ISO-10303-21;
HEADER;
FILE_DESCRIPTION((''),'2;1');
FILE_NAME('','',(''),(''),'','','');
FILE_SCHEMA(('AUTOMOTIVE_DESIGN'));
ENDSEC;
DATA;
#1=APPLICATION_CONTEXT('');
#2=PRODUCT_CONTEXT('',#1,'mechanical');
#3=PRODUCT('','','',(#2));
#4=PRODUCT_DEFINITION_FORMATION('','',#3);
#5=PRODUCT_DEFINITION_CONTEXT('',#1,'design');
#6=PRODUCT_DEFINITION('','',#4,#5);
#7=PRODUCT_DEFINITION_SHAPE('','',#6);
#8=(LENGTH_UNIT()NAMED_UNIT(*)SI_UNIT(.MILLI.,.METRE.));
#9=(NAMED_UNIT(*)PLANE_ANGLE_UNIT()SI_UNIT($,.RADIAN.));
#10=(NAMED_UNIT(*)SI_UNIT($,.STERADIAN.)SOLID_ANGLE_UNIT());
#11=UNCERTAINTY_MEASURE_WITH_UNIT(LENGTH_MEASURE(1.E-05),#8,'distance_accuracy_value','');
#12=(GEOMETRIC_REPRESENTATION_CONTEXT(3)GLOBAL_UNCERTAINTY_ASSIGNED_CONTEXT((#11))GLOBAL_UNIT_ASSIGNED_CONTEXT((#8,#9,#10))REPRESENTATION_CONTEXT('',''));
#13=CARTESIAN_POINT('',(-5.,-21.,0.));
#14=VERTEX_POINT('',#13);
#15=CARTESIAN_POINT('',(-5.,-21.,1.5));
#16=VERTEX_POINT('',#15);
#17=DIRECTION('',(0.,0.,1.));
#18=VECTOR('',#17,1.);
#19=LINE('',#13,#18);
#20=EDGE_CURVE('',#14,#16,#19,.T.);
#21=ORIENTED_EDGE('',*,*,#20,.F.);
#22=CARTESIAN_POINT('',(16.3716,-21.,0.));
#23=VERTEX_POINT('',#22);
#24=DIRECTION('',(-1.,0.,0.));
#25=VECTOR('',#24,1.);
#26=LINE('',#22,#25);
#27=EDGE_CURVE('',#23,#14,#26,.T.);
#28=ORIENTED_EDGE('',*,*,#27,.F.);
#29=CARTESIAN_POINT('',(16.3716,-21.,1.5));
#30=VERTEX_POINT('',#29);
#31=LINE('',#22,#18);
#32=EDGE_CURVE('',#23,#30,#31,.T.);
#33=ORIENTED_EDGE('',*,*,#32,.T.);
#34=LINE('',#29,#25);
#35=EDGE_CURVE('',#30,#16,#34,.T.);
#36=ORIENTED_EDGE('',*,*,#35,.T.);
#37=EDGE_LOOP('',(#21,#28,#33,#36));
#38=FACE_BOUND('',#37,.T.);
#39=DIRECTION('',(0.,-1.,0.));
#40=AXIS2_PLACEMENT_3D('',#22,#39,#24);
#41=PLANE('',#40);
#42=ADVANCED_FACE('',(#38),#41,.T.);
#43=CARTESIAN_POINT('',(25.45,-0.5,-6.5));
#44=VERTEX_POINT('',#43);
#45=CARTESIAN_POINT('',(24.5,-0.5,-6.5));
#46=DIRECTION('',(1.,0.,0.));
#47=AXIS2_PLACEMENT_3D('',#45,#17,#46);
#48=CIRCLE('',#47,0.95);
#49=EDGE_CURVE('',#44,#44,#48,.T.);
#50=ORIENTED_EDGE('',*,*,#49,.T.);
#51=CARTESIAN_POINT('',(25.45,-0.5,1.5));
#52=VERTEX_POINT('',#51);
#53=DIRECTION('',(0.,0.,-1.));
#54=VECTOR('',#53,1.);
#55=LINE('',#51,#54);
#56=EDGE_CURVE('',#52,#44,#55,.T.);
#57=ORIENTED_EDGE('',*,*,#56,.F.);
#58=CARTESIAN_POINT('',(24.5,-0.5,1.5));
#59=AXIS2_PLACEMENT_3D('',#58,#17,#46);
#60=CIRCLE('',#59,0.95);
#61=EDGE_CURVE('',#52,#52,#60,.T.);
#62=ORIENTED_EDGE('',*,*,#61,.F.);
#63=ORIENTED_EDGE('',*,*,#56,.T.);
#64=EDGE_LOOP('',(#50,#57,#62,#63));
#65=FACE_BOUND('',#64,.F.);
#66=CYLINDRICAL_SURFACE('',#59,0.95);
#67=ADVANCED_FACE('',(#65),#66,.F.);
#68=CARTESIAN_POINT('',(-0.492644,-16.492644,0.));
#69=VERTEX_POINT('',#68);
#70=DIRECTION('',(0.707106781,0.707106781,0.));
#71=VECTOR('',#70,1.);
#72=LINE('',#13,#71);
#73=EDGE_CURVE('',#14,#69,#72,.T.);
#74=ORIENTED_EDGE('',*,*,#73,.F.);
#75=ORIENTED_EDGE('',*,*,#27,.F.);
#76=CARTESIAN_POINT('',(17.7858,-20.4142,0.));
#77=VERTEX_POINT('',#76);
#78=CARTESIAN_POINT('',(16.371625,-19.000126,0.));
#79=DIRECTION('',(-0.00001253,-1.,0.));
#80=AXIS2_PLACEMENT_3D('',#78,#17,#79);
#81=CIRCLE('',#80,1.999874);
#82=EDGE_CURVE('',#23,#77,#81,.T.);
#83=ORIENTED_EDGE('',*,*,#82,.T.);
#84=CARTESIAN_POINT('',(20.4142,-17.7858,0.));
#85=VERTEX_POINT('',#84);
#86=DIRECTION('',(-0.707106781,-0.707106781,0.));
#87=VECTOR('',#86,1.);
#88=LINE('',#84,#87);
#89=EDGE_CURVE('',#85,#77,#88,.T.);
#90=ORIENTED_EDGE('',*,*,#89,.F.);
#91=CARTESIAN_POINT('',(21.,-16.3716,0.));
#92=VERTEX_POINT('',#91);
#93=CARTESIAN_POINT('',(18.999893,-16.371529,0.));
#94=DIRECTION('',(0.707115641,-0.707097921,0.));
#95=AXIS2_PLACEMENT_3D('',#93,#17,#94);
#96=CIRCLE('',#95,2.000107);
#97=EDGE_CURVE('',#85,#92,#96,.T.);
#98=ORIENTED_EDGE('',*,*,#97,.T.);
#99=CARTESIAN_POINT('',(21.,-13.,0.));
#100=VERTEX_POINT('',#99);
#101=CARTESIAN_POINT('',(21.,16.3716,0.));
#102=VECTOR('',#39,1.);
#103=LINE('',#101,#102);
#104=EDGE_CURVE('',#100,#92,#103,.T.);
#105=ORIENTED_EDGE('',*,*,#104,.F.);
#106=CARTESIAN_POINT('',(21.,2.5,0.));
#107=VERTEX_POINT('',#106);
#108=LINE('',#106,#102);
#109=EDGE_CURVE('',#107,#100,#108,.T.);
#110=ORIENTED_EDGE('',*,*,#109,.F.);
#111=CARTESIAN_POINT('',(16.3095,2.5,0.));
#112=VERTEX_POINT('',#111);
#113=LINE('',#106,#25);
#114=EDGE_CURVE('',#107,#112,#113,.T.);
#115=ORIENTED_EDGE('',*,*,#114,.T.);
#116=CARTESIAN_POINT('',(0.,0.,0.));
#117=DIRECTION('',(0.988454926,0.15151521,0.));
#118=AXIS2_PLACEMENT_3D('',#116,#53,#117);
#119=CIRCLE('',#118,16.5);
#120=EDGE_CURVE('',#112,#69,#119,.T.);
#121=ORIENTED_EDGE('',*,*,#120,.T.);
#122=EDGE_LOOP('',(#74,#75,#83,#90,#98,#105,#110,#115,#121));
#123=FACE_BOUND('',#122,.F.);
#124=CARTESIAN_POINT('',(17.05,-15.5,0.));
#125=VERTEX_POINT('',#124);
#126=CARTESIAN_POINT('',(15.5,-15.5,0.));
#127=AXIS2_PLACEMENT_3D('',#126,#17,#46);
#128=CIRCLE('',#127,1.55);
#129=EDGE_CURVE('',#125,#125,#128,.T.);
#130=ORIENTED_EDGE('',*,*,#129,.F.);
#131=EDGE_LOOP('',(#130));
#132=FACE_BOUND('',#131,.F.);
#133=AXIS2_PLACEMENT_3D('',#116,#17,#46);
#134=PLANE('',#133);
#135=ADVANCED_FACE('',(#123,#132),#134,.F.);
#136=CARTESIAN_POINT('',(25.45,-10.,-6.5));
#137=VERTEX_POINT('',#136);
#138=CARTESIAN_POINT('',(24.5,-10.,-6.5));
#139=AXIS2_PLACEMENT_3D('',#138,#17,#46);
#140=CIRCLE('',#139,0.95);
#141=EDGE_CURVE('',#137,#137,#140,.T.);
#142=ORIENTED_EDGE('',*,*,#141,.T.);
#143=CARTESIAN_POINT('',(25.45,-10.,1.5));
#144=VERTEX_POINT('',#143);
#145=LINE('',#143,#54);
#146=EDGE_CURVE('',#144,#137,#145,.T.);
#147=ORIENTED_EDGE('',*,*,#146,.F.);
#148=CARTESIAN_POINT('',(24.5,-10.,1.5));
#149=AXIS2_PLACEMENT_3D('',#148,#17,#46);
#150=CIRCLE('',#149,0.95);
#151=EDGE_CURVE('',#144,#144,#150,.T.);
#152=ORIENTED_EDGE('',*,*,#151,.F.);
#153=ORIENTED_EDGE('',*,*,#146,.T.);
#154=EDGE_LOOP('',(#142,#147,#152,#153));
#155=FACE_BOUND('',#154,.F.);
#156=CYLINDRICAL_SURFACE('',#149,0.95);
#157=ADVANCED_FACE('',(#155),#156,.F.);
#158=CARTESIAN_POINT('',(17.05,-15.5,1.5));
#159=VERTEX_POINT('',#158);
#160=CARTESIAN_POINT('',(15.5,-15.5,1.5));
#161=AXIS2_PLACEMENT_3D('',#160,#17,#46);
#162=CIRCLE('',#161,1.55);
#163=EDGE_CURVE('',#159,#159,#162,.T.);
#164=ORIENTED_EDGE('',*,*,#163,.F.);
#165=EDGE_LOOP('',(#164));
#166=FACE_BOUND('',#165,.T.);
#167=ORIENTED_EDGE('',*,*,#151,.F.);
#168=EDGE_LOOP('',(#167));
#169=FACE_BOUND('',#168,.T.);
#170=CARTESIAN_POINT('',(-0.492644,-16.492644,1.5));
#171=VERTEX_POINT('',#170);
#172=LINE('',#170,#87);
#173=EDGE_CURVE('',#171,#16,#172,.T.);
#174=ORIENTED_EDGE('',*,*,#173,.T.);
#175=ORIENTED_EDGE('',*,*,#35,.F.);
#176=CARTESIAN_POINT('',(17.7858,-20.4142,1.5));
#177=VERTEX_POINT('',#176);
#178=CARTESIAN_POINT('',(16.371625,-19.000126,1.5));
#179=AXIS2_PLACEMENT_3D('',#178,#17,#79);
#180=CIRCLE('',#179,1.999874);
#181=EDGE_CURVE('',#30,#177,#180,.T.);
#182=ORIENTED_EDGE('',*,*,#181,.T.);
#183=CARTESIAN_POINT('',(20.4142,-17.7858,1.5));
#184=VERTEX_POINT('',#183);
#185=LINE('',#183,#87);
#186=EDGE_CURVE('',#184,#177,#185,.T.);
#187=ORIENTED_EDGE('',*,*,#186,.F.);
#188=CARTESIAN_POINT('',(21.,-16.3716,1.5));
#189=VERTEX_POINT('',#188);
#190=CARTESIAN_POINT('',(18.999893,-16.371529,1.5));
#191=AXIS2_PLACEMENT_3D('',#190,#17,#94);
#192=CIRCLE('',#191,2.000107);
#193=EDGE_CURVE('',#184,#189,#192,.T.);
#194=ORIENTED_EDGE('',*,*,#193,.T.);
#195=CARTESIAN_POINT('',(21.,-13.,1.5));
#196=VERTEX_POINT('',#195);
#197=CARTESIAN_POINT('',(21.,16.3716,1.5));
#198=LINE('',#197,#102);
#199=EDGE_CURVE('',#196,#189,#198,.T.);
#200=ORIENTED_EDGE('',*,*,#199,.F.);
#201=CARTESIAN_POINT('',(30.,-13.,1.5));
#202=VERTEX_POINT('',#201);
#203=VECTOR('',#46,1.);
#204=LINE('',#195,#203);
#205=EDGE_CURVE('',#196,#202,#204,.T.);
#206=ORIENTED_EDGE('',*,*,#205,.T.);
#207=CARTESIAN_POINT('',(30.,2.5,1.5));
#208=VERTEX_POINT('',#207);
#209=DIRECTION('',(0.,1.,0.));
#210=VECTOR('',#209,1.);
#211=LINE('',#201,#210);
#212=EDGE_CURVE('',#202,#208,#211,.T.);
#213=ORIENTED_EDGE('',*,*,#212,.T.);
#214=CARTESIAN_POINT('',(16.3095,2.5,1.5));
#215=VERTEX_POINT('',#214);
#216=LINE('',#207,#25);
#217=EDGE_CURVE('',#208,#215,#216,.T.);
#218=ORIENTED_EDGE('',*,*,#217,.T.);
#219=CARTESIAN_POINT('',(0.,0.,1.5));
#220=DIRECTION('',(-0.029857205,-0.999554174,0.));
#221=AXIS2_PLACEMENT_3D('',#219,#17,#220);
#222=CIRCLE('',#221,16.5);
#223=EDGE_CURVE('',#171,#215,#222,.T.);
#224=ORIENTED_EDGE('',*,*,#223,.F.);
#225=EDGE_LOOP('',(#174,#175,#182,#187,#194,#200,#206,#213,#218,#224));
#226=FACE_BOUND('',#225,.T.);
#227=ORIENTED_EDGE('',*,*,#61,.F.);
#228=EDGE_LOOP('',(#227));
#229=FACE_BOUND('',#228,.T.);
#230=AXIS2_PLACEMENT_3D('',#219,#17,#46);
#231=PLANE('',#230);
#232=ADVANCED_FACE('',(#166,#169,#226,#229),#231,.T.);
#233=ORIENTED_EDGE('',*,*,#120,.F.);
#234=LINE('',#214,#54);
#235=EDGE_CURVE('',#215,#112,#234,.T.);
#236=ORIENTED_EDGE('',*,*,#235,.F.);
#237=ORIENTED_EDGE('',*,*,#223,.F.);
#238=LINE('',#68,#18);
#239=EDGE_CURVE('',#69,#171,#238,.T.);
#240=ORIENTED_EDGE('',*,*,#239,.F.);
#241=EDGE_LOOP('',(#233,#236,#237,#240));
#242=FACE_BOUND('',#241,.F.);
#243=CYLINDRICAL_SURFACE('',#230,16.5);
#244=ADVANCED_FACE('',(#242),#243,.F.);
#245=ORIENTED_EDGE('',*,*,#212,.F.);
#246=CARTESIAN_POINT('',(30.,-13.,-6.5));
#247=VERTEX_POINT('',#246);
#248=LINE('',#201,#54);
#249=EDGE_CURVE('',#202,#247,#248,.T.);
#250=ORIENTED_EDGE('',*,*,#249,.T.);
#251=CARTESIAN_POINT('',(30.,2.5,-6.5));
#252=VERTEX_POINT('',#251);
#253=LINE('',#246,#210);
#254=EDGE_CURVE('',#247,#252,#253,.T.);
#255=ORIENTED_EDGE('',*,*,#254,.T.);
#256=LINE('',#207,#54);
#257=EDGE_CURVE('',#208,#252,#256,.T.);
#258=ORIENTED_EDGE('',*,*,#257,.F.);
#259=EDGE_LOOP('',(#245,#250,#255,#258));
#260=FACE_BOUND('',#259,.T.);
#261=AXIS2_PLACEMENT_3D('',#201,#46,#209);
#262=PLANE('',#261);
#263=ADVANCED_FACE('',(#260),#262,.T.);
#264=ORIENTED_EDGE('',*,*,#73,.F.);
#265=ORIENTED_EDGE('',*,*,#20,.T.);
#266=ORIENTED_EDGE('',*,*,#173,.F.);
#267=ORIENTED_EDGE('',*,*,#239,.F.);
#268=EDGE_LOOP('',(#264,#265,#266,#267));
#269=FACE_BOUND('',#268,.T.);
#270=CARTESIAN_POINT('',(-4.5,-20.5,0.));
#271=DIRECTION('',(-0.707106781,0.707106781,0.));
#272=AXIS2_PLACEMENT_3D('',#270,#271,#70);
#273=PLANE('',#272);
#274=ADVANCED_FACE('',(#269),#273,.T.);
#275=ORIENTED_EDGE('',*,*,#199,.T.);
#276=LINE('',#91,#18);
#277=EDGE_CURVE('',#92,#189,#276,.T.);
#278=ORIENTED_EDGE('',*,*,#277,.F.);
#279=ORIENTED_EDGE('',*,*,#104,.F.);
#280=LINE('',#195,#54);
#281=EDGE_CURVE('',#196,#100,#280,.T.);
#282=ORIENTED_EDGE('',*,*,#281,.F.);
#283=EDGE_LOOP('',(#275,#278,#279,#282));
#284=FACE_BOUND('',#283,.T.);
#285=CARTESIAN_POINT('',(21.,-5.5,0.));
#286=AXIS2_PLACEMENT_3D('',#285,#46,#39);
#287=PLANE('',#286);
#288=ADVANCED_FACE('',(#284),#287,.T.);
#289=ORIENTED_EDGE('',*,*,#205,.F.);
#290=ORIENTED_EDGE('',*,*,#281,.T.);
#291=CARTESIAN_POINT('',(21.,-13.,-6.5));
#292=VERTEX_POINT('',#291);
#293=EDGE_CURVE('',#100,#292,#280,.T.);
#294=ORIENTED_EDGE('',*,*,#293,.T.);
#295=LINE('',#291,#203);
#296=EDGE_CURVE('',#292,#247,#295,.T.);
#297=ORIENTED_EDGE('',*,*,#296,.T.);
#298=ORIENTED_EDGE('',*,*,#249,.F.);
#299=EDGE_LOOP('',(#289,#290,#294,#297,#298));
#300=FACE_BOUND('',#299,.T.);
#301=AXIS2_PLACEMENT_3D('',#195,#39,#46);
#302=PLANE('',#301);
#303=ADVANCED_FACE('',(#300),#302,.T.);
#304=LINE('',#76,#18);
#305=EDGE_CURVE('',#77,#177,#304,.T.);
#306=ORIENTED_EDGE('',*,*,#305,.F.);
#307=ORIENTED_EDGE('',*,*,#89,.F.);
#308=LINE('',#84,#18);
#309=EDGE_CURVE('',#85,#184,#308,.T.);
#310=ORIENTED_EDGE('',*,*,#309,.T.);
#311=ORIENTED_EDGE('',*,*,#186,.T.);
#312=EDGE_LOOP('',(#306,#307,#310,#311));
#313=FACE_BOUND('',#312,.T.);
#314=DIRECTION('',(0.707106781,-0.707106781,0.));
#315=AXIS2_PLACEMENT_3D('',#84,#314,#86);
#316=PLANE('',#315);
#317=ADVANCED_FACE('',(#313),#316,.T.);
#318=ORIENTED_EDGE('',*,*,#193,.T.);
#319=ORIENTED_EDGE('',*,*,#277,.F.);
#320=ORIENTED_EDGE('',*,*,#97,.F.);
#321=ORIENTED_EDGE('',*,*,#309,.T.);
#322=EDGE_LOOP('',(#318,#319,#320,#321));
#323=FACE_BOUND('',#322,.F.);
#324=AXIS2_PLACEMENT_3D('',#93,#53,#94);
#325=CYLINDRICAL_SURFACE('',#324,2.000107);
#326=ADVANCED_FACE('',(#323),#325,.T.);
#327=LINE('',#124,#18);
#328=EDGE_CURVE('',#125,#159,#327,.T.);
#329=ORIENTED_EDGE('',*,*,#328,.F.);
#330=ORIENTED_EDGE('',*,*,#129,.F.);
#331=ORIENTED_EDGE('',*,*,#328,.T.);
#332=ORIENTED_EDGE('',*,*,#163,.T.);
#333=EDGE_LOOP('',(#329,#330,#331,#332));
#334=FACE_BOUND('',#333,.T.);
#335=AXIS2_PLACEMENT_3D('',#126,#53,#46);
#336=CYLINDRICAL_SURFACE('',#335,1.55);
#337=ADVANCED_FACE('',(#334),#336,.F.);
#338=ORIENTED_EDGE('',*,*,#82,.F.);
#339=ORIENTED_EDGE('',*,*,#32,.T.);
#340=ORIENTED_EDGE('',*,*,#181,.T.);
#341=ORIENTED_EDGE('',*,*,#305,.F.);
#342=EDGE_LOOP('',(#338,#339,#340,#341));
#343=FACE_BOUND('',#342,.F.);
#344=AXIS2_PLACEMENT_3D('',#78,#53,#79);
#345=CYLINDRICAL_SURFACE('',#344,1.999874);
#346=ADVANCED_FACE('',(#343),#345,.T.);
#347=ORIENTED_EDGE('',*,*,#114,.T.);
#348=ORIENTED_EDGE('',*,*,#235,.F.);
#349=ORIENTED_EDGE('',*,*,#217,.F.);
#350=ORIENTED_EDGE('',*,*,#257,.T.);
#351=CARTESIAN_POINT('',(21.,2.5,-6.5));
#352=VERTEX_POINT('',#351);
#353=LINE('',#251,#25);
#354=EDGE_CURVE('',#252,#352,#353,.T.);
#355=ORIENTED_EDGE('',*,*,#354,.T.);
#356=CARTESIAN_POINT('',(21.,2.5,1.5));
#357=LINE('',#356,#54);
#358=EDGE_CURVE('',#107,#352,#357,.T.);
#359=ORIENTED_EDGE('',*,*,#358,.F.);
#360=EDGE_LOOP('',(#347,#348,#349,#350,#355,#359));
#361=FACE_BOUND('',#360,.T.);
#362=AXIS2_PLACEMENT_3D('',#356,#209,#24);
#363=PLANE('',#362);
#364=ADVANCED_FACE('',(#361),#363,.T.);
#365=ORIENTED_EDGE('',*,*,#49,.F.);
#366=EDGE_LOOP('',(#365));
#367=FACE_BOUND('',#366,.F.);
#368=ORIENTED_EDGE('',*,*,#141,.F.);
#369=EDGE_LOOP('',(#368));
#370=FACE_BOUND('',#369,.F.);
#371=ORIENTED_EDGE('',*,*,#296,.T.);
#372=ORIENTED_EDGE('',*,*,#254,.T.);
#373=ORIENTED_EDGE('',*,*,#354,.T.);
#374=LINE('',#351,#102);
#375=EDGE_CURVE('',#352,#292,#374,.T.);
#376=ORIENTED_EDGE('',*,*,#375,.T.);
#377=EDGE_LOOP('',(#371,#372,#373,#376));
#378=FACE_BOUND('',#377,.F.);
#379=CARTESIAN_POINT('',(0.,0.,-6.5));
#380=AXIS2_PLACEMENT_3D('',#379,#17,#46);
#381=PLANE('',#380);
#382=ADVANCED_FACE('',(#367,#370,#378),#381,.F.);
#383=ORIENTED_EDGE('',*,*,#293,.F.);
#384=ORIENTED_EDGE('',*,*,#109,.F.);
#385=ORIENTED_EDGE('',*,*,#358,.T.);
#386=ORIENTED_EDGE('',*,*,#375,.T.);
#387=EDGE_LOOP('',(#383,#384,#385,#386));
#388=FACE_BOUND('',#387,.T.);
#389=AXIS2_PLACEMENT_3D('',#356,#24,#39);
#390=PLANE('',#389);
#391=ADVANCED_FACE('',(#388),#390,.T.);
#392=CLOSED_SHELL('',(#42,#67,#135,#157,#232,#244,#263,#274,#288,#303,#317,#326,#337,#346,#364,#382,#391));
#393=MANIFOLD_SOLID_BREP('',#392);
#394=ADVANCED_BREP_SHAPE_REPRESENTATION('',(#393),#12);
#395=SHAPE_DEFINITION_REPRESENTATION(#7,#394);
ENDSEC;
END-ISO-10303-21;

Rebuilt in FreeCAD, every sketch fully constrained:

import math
import FreeCAD as App
import Part
import Sketcher

V = App.Vector
Q = App.Units.Quantity

doc = App.newDocument("Part")
body = doc.addObject("PartDesign::Body", "Body")

sketch1 = body.newObject("Sketcher::SketchObject", "Sketch")
sketch1.AttachmentSupport = (doc.getObject("XY_Plane"), [""])
sketch1.MapMode = "FlatFace"
sketch1.addGeometry([
    Part.LineSegment(V(21, -5.5, 0), V(15.6, -5.5, 0)),
    Part.ArcOfCircle(Part.Circle(V(0, 0, 0), V(0, 0, 1), 16.5), math.radians(-92), math.radians(-19)),
    Part.LineSegment(V(-0.5, -16.5, 0), V(-5, -21, 0)),
    Part.LineSegment(V(-5, -21, 0), V(16.4, -21, 0)),
    Part.ArcOfCircle(Part.Circle(V(16.4, -19, 0), V(0, 0, 1), 2), math.radians(-90), math.radians(-45)),
    Part.LineSegment(V(17.8, -20.4, 0), V(20.4, -17.8, 0)),
    Part.ArcOfCircle(Part.Circle(V(19, -16.4, 0), V(0, 0, 1), 2), math.radians(-45), math.radians(0)),
    Part.LineSegment(V(21, -16.4, 0), V(21, -5.5, 0)),
    Part.Circle(V(15.5, -15.5, 0), V(0, 0, 1), 1.6),
], False)
sketch1.addConstraint([
    Sketcher.Constraint("Coincident", 0, 2, 1, 2),
    Sketcher.Constraint("Coincident", 1, 1, 2, 1),
    Sketcher.Constraint("Coincident", 2, 2, 3, 1),
    Sketcher.Constraint("Tangent", 3, 2, 4, 1),
    Sketcher.Constraint("Tangent", 4, 2, 5, 1),
    Sketcher.Constraint("Tangent", 5, 2, 6, 1),
    Sketcher.Constraint("Tangent", 6, 2, 7, 1),
    Sketcher.Constraint("Coincident", 7, 2, 0, 1),
    Sketcher.Constraint("Horizontal", 0),
    Sketcher.Constraint("Horizontal", 3),
    Sketcher.Constraint("Vertical", 7),
    Sketcher.Constraint("Coincident", 1, 3, -1, 1),
    Sketcher.Constraint("Equal", 4, 6),
    Sketcher.Constraint("Parallel", 2, 5),
    Sketcher.Constraint("Radius", 4, 2.0),
    Sketcher.Constraint("Diameter", 8, 3.1),
    Sketcher.Constraint("Radius", 1, 16.5),
    Sketcher.Constraint("Angle", 2, Q("-135 deg")),
    Sketcher.Constraint("DistanceY", 4, 3, -1, 1, 19.0),
    Sketcher.Constraint("DistanceX", -1, 1, 6, 3, 19.0),
    Sketcher.Constraint("DistanceX", 2, 2, -1, 1, 5.0),
    Sketcher.Constraint("DistanceY", 8, 3, 0, 2, 10.0),
    Sketcher.Constraint("DistanceX", -1, 1, 8, 3, 15.5),
    Sketcher.Constraint("DistanceY", 8, 3, -1, 1, 15.5),
    Sketcher.Constraint("Distance", 5, 3.717),
])
pad1 = body.newObject("PartDesign::Pad", "Pad")
pad1.Profile = sketch1
pad1.Length = 1.5

sketch2 = body.newObject("Sketcher::SketchObject", "Sketch001")
sketch2.AttachmentSupport = (doc.getObject("XY_Plane"), [""])
sketch2.MapMode = "FlatFace"
sketch2.AttachmentOffset = App.Placement(V(0, 0, 1.5), App.Rotation())
sketch2.addGeometry([
    Part.LineSegment(V(30, -13, 0), V(30, 2.5, 0)),
    Part.LineSegment(V(30, 2.5, 0), V(21, 2.5, 0)),
    Part.LineSegment(V(21, 2.5, 0), V(21, -13, 0)),
    Part.LineSegment(V(21, -13, 0), V(30, -13, 0)),
    Part.Circle(V(24.5, -10, 0), V(0, 0, 1), 0.9),
    Part.Circle(V(24.5, -0.5, 0), V(0, 0, 1), 0.9),
], False)
sketch2.addConstraint([
    Sketcher.Constraint("Coincident", 0, 2, 1, 1),
    Sketcher.Constraint("Coincident", 1, 2, 2, 1),
    Sketcher.Constraint("Coincident", 2, 2, 3, 1),
    Sketcher.Constraint("Coincident", 3, 2, 0, 1),
    Sketcher.Constraint("Vertical", 0),
    Sketcher.Constraint("Horizontal", 1),
    Sketcher.Constraint("Vertical", 2),
    Sketcher.Constraint("Horizontal", 3),
    Sketcher.Constraint("Equal", 4, 5),
    Sketcher.Constraint("Vertical", 4, 3, 5, 3),
    Sketcher.Constraint("Diameter", 4, 1.9),
    Sketcher.Constraint("DistanceX", 1, 2, 1, 1, 9.0),
    Sketcher.Constraint("DistanceY", 4, 3, -1, 1, 10.0),
    Sketcher.Constraint("DistanceY", 5, 3, 0, 2, 3.0),
    Sketcher.Constraint("DistanceY", 2, 2, 4, 3, 3.0),
    Sketcher.Constraint("DistanceX", -1, 1, 4, 3, 24.5),
    Sketcher.Constraint("DistanceY", 4, 3, 5, 3, 9.5),
    Sketcher.Constraint("DistanceX", -1, 1, 0, 2, 30.0),
])
pad2 = body.newObject("PartDesign::Pad", "Pad001")
pad2.Profile = sketch2
pad2.Length = 8
pad2.Reversed = True

sketch3 = body.newObject("Sketcher::SketchObject", "Sketch002")
sketch3.AttachmentSupport = (doc.getObject("XY_Plane"), [""])
sketch3.MapMode = "FlatFace"
sketch3.AttachmentOffset = App.Placement(V(0, 0, 1.5), App.Rotation())
sketch3.addGeometry([
    Part.ArcOfCircle(Part.Circle(V(0, 0, 0), V(0, 0, 1), 16.5), math.radians(-19), math.radians(9)),
    Part.LineSegment(V(15.6, -5.5, 0), V(21, -5.5, 0)),
    Part.LineSegment(V(21, -5.5, 0), V(21, 2.5, 0)),
    Part.LineSegment(V(21, 2.5, 0), V(16.3, 2.5, 0)),
], False)
sketch3.addConstraint([
    Sketcher.Constraint("Coincident", 0, 1, 1, 1),
    Sketcher.Constraint("Coincident", 1, 2, 2, 1),
    Sketcher.Constraint("Coincident", 2, 2, 3, 1),
    Sketcher.Constraint("Coincident", 3, 2, 0, 2),
    Sketcher.Constraint("Horizontal", 1),
    Sketcher.Constraint("Vertical", 2),
    Sketcher.Constraint("Horizontal", 3),
    Sketcher.Constraint("Coincident", 0, 3, -1, 1),
    Sketcher.Constraint("Radius", 0, 16.5),
    Sketcher.Constraint("DistanceY", 2, 1, 2, 2, 8.0),
    Sketcher.Constraint("DistanceX", -1, 1, 1, 2, 21.0),
    Sketcher.Constraint("DistanceY", 0, 1, -1, 1, 5.5),
])
pad3 = body.newObject("PartDesign::Pad", "Pad002")
pad3.Profile = sketch3
pad3.Length = 1.5
pad3.Reversed = True

doc.recompute()
